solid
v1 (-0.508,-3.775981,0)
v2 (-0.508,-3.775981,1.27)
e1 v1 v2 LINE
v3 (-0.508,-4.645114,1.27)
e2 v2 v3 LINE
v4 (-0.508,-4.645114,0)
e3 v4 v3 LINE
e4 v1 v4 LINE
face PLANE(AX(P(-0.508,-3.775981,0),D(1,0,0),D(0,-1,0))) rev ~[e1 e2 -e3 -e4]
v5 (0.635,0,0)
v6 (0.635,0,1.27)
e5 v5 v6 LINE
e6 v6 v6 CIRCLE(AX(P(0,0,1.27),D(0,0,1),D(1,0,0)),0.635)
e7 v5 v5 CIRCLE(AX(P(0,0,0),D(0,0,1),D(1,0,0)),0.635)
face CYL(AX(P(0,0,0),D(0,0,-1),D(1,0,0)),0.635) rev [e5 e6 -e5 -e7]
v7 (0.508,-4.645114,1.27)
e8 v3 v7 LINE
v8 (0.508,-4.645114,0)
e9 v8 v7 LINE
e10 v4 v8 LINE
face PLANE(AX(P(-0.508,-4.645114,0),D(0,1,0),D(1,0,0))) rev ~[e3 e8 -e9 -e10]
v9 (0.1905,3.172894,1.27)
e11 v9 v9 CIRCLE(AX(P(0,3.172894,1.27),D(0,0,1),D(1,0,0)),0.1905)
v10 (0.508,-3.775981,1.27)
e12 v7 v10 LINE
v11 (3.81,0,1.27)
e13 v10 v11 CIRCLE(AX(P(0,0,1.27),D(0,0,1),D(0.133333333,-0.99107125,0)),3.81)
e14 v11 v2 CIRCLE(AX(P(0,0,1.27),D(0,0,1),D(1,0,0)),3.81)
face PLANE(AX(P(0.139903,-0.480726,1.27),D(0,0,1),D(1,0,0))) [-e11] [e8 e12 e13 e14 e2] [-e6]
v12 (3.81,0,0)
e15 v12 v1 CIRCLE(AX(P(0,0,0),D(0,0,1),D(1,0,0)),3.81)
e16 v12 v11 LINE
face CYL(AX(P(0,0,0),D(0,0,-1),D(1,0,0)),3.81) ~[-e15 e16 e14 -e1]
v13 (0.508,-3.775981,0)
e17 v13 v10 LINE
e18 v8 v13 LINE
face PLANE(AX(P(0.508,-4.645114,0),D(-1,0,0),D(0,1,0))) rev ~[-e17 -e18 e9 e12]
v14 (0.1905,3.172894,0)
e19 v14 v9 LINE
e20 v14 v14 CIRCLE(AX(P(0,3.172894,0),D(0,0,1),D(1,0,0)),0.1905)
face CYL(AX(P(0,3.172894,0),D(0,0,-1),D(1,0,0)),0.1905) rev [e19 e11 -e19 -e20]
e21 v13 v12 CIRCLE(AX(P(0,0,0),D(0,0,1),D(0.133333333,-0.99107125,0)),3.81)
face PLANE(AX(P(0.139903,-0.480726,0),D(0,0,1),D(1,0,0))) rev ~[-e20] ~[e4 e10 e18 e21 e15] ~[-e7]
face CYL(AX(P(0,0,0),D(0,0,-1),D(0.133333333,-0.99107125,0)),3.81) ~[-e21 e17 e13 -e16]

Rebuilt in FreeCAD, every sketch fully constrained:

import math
import FreeCAD as App
import Part
import Sketcher
from FreeCAD import Vector
Q = App.Units.Quantity

doc = App.newDocument("Part")
body = doc.addObject("PartDesign::Body", "Body")

# Sketch on XY plane
sketch1 = body.newObject("Sketcher::SketchObject", "Sketch")
sketch1.AttachmentSupport = (doc.getObject("XY_Plane"), [""])
sketch1.MapMode = "FlatFace"
sketch1.addGeometry([
    Part.ArcOfCircle(Part.Circle(Vector(0, 0, 0), Vector(0, 0, 1), 3.81), math.radians(-82.337744), math.radians(0)),  # 0
    Part.ArcOfCircle(Part.Circle(Vector(0, 0, 0), Vector(0, 0, 1), 3.81), math.radians(0), math.radians(262.337744)),  # 1
    Part.LineSegment(Vector(-0.508, -3.775981, 0), Vector(-0.508, -4.645114, 0)),  # 2
    Part.LineSegment(Vector(-0.508, -4.645114, 0), Vector(0.508, -4.645114, 0)),  # 3
    Part.LineSegment(Vector(0.508, -4.645114, 0), Vector(0.508, -3.775981, 0)),  # 4
    Part.Circle(Vector(0, 0, 0), Vector(0, 0, 1), 0.635),  # 5
    Part.Circle(Vector(0, 3.172894, 0), Vector(0, 0, 1), 0.1905),  # 6
], False)
sketch1.addConstraint([
    Sketcher.Constraint("Tangent", 0, 2, 1, 1),
    Sketcher.Constraint("Coincident", 1, 2, 2, 1),
    Sketcher.Constraint("Coincident", 2, 2, 3, 1),
    Sketcher.Constraint("Coincident", 3, 2, 4, 1),
    Sketcher.Constraint("Coincident", 4, 2, 0, 1),
    Sketcher.Constraint("Vertical", 2),
    Sketcher.Constraint("Horizontal", 3),
    Sketcher.Constraint("Vertical", 4),
    Sketcher.Constraint("Coincident", 0, 3, -1, 1),
    Sketcher.Constraint("Coincident", 5, 3, -1, 1),
    Sketcher.Constraint("Equal", 0, 1),
    Sketcher.Constraint("PointOnObject", 6, 3, -2),
    Sketcher.Constraint("PointOnObject", 0, 2, -1),
    Sketcher.Constraint("Horizontal", 1, 2, 4, 2),
    Sketcher.Constraint("Diameter", 5, Q("0.05 in")),
    Sketcher.Constraint("Radius", 0, Q("0.15 in")),
    Sketcher.Constraint("Diameter", 6, Q("0.015 in")),
    Sketcher.Constraint("DistanceX", 3, 1, 3, 2, Q("0.04 in")),
    Sketcher.Constraint("DistanceY", 2, 2, 2, 1, Q("0.869132 mm")),
    Sketcher.Constraint("DistanceY", -1, 1, 6, 3, Q("3.172894 mm")),
])
pad1 = body.newObject("PartDesign::Pad", "Pad")
pad1.Profile = sketch1
pad1.Length = Q("0.05 in")

doc.recompute()
